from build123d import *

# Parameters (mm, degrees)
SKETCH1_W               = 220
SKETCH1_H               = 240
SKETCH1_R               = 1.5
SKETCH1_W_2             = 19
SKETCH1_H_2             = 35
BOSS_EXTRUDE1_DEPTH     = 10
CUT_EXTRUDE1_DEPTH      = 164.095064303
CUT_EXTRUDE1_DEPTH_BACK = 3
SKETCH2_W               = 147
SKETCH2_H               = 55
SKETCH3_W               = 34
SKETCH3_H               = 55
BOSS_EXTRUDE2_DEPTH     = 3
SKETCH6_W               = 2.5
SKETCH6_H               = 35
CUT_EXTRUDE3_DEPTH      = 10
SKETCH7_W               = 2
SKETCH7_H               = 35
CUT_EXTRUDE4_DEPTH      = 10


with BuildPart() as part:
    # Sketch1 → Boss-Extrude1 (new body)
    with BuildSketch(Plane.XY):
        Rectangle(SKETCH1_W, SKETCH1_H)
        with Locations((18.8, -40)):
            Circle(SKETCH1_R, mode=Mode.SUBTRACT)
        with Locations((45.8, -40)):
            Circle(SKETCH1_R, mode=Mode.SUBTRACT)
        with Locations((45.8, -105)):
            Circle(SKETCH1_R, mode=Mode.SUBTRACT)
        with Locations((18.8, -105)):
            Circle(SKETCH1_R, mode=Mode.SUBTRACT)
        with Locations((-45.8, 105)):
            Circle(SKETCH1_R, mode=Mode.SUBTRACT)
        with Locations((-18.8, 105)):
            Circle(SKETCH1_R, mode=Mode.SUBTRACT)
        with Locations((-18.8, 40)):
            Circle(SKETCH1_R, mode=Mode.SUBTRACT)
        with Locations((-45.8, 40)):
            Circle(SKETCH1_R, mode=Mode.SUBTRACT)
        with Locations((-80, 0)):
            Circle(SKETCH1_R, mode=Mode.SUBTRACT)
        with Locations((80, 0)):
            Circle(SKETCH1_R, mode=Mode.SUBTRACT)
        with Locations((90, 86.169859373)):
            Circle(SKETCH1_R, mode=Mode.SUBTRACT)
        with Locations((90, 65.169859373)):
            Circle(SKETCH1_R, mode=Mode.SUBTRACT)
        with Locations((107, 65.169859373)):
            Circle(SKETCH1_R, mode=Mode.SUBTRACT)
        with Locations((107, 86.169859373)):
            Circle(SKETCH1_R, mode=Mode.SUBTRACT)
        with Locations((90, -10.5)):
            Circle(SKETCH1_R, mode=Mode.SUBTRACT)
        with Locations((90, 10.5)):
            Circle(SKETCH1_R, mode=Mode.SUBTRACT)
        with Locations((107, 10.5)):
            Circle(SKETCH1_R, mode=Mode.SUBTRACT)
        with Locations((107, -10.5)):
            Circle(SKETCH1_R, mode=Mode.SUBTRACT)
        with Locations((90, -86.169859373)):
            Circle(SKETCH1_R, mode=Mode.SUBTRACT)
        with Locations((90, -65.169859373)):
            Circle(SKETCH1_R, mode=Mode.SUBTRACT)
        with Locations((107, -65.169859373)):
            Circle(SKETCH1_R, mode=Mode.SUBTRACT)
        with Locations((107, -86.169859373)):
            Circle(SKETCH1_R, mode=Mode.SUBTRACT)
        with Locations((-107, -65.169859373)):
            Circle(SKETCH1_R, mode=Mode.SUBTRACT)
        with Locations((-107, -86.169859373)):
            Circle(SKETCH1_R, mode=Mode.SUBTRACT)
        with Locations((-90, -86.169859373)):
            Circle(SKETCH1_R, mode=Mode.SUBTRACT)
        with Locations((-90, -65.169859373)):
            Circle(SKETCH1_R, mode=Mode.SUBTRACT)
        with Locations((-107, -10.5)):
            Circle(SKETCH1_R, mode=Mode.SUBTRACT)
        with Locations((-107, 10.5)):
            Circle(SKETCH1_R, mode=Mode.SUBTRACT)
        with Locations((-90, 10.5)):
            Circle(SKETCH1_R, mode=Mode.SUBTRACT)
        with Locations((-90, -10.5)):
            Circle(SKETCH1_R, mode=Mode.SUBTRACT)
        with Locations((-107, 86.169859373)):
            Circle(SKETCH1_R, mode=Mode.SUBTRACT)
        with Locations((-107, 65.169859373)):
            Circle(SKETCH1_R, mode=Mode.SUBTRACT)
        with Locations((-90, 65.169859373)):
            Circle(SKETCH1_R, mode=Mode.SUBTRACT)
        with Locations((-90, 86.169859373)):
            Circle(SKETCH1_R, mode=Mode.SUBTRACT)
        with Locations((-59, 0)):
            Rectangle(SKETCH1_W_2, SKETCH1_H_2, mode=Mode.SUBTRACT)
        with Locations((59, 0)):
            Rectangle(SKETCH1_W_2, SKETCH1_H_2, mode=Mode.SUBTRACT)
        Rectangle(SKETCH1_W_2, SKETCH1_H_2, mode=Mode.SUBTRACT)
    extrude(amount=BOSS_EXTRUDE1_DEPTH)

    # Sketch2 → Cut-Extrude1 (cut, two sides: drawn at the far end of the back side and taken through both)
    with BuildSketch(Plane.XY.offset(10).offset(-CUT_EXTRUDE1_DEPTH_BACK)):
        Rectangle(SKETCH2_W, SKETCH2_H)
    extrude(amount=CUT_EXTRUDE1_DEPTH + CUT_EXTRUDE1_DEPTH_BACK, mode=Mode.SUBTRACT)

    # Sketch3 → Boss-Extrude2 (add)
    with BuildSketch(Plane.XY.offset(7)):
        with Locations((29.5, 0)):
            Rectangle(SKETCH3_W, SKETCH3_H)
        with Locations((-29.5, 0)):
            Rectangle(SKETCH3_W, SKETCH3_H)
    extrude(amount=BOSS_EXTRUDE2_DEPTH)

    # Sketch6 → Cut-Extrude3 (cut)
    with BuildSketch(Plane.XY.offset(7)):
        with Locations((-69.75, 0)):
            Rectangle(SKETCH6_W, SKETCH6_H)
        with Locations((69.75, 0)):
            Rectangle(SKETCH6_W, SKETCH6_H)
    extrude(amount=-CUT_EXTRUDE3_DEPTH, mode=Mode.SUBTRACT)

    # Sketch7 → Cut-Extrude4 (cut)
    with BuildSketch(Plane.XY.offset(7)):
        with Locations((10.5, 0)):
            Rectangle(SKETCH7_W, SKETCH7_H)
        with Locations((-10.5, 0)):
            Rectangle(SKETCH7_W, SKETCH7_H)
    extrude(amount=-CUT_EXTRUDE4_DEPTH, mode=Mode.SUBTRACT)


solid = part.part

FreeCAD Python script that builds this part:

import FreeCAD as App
import Part
import Sketcher
Q = App.Units.Quantity


def add_polygon(sketch, points):
    """Adds a closed chain of lines whose ends are joined by coincident constraints."""
    first, n = sketch.GeometryCount, len(points)
    for a, b in zip(points, points[1:] + points[:1]):
        sketch.addGeometry(Part.LineSegment(App.Vector(*a, 0), App.Vector(*b, 0)), False)
    for i in range(n):
        sketch.addConstraint(Sketcher.Constraint("Coincident", first + i, 2, first + (i + 1) % n, 1))

doc = App.newDocument("Part")
body = doc.addObject("PartDesign::Body", "Body")

# Sketch on XY plane
sketch1 = doc.addObject("Sketcher::SketchObject", "Sketch")
body.addObject(sketch1)
sketch1.AttachmentSupport = (doc.XY_Plane, [""])
sketch1.MapMode = "FlatFace"
add_polygon(sketch1, [(-110, 120), (-110, -120), (110, -120), (110, 120)])  # lines 0-3
sketch1.addGeometry(Part.Circle(App.Vector(-107, -86.169859, 0), App.Vector(0, 0, 1), 1.5), False)  # 4
sketch1.addGeometry(Part.Circle(App.Vector(-90, -86.169859, 0), App.Vector(0, 0, 1), 1.5), False)  # 5
sketch1.addGeometry(Part.Circle(App.Vector(-107, -65.169859, 0), App.Vector(0, 0, 1), 1.5), False)  # 6
sketch1.addGeometry(Part.Circle(App.Vector(-90, -65.169859, 0), App.Vector(0, 0, 1), 1.5), False)  # 7
sketch1.addGeometry(Part.Circle(App.Vector(-107, -10.5, 0), App.Vector(0, 0, 1), 1.5), False)  # 8
sketch1.addGeometry(Part.Circle(App.Vector(-90, -10.5, 0), App.Vector(0, 0, 1), 1.5), False)  # 9
sketch1.addGeometry(Part.Circle(App.Vector(18.8, -105, 0), App.Vector(0, 0, 1), 1.5), False)  # 10
sketch1.addGeometry(Part.Circle(App.Vector(45.8, -105, 0), App.Vector(0, 0, 1), 1.5), False)  # 11
sketch1.addGeometry(Part.Circle(App.Vector(90, -86.169859, 0), App.Vector(0, 0, 1), 1.5), False)  # 12
sketch1.addGeometry(Part.Circle(App.Vector(107, -86.169859, 0), App.Vector(0, 0, 1), 1.5), False)  # 13
sketch1.addGeometry(Part.Circle(App.Vector(90, -65.169859, 0), App.Vector(0, 0, 1), 1.5), False)  # 14
sketch1.addGeometry(Part.Circle(App.Vector(107, -65.169859, 0), App.Vector(0, 0, 1), 1.5), False)  # 15
sketch1.addGeometry(Part.Circle(App.Vector(18.8, -40, 0), App.Vector(0, 0, 1), 1.5), False)  # 16
sketch1.addGeometry(Part.Circle(App.Vector(45.8, -40, 0), App.Vector(0, 0, 1), 1.5), False)  # 17
sketch1.addGeometry(Part.Circle(App.Vector(90, -10.5, 0), App.Vector(0, 0, 1), 1.5), False)  # 18
sketch1.addGeometry(Part.Circle(App.Vector(107, -10.5, 0), App.Vector(0, 0, 1), 1.5), False)  # 19
sketch1.addGeometry(Part.Circle(App.Vector(-107, 10.5, 0), App.Vector(0, 0, 1), 1.5), False)  # 20
sketch1.addGeometry(Part.Circle(App.Vector(-90, 10.5, 0), App.Vector(0, 0, 1), 1.5), False)  # 21
sketch1.addGeometry(Part.Circle(App.Vector(-80, 0, 0), App.Vector(0, 0, 1), 1.5), False)  # 22
add_polygon(sketch1, [(-49.5, -17.5), (-68.5, -17.5), (-68.5, 17.5), (-49.5, 17.5)])  # lines 23-26
sketch1.addGeometry(Part.Circle(App.Vector(-45.8, 40, 0), App.Vector(0, 0, 1), 1.5), False)  # 27
sketch1.addGeometry(Part.Circle(App.Vector(-18.8, 40, 0), App.Vector(0, 0, 1), 1.5), False)  # 28
sketch1.addGeometry(Part.Circle(App.Vector(-107, 65.169859, 0), App.Vector(0, 0, 1), 1.5), False)  # 29
sketch1.addGeometry(Part.Circle(App.Vector(-90, 65.169859, 0), App.Vector(0, 0, 1), 1.5), False)  # 30
sketch1.addGeometry(Part.Circle(App.Vector(-107, 86.169859, 0), App.Vector(0, 0, 1), 1.5), False)  # 31
sketch1.addGeometry(Part.Circle(App.Vector(-90, 86.169859, 0), App.Vector(0, 0, 1), 1.5), False)  # 32
sketch1.addGeometry(Part.Circle(App.Vector(-45.8, 105, 0), App.Vector(0, 0, 1), 1.5), False)  # 33
sketch1.addGeometry(Part.Circle(App.Vector(-18.8, 105, 0), App.Vector(0, 0, 1), 1.5), False)  # 34
add_polygon(sketch1, [(9.5, -17.5), (-9.5, -17.5), (-9.5, 17.5), (9.5, 17.5)])  # lines 35-38
add_polygon(sketch1, [(68.5, -17.5), (49.5, -17.5), (49.5, 17.5), (68.5, 17.5)])  # lines 39-42
sketch1.addGeometry(Part.Circle(App.Vector(80, 0, 0), App.Vector(0, 0, 1), 1.5), False)  # 43
sketch1.addGeometry(Part.Circle(App.Vector(90, 10.5, 0), App.Vector(0, 0, 1), 1.5), False)  # 44
sketch1.addGeometry(Part.Circle(App.Vector(107, 10.5, 0), App.Vector(0, 0, 1), 1.5), False)  # 45
sketch1.addGeometry(Part.Circle(App.Vector(90, 65.169859, 0), App.Vector(0, 0, 1), 1.5), False)  # 46
sketch1.addGeometry(Part.Circle(App.Vector(107, 65.169859, 0), App.Vector(0, 0, 1), 1.5), False)  # 47
sketch1.addGeometry(Part.Circle(App.Vector(90, 86.169859, 0), App.Vector(0, 0, 1), 1.5), False)  # 48
sketch1.addGeometry(Part.Circle(App.Vector(107, 86.169859, 0), App.Vector(0, 0, 1), 1.5), False)  # 49
sketch1.addConstraint(Sketcher.Constraint("Vertical", 0))
sketch1.addConstraint(Sketcher.Constraint("Horizontal", 1))
sketch1.addConstraint(Sketcher.Constraint("Vertical", 2))
sketch1.addConstraint(Sketcher.Constraint("Horizontal", 3))
sketch1.addConstraint(Sketcher.Constraint("Horizontal", 23))
sketch1.addConstraint(Sketcher.Constraint("Vertical", 24))
sketch1.addConstraint(Sketcher.Constraint("Horizontal", 25))
sketch1.addConstraint(Sketcher.Constraint("Vertical", 26))
sketch1.addConstraint(Sketcher.Constraint("Horizontal", 35))
sketch1.addConstraint(Sketcher.Constraint("Vertical", 36))
sketch1.addConstraint(Sketcher.Constraint("Horizontal", 37))
sketch1.addConstraint(Sketcher.Constraint("Vertical", 38))
sketch1.addConstraint(Sketcher.Constraint("Horizontal", 39))
sketch1.addConstraint(Sketcher.Constraint("Vertical", 40))
sketch1.addConstraint(Sketcher.Constraint("Horizontal", 41))
sketch1.addConstraint(Sketcher.Constraint("Vertical", 42))
sketch1.addConstraint(Sketcher.Constraint("Equal", 4, 5))
sketch1.addConstraint(Sketcher.Constraint("Equal", 5, 6))
sketch1.addConstraint(Sketcher.Constraint("Equal", 6, 7))
sketch1.addConstraint(Sketcher.Constraint("Equal", 7, 8))
sketch1.addConstraint(Sketcher.Constraint("Equal", 8, 9))
sketch1.addConstraint(Sketcher.Constraint("Equal", 9, 10))
sketch1.addConstraint(Sketcher.Constraint("Equal", 10, 11))
sketch1.addConstraint(Sketcher.Constraint("Equal", 11, 12))
sketch1.addConstraint(Sketcher.Constraint("Equal", 12, 13))
sketch1.addConstraint(Sketcher.Constraint("Equal", 13, 14))
sketch1.addConstraint(Sketcher.Constraint("Equal", 14, 15))
sketch1.addConstraint(Sketcher.Constraint("Equal", 15, 16))
sketch1.addConstraint(Sketcher.Constraint("Equal", 16, 17))
sketch1.addConstraint(Sketcher.Constraint("Equal", 17, 18))
sketch1.addConstraint(Sketcher.Constraint("Equal", 18, 19))
sketch1.addConstraint(Sketcher.Constraint("Equal", 19, 20))
sketch1.addConstraint(Sketcher.Constraint("Equal", 20, 21))
sketch1.addConstraint(Sketcher.Constraint("Equal", 21, 22))
sketch1.addConstraint(Sketcher.Constraint("Equal", 22, 27))
sketch1.addConstraint(Sketcher.Constraint("Equal", 27, 28))
sketch1.addConstraint(Sketcher.Constraint("Equal", 28, 29))
sketch1.addConstraint(Sketcher.Constraint("Equal", 29, 30))
sketch1.addConstraint(Sketcher.Constraint("Equal", 30, 31))
sketch1.addConstraint(Sketcher.Constraint("Equal", 31, 32))
sketch1.addConstraint(Sketcher.Constraint("Equal", 32, 33))
sketch1.addConstraint(Sketcher.Constraint("Equal", 33, 34))
sketch1.addConstraint(Sketcher.Constraint("Equal", 34, 43))
sketch1.addConstraint(Sketcher.Constraint("Equal", 43, 44))
sketch1.addConstraint(Sketcher.Constraint("Equal", 44, 45))
sketch1.addConstraint(Sketcher.Constraint("Equal", 45, 46))
sketch1.addConstraint(Sketcher.Constraint("Equal", 46, 47))
sketch1.addConstraint(Sketcher.Constraint("Equal", 47, 48))
sketch1.addConstraint(Sketcher.Constraint("Equal", 48, 49))
sketch1.addConstraint(Sketcher.Constraint("Symmetric", 19, 3, 20, 3, -1, 1))
sketch1.addConstraint(Sketcher.Constraint("Symmetric", 18, 3, 21, 3, -1, 1))
sketch1.addConstraint(Sketcher.Constraint("Symmetric", 17, 3, 27, 3, -1, 1))
sketch1.addConstraint(Sketcher.Constraint("Symmetric", 16, 3, 28, 3, -1, 1))
sketch1.addConstraint(Sketcher.Constraint("Symmetric", 15, 3, 29, 3, -1, 1))
sketch1.addConstraint(Sketcher.Constraint("Symmetric", 14, 3, 30, 3, -1, 1))
sketch1.addConstraint(Sketcher.Constraint("Symmetric", 13, 3, 31, 3, -1, 1))
sketch1.addConstraint(Sketcher.Constraint("Symmetric", 12, 3, 32, 3, -1, 1))
sketch1.addConstraint(Sketcher.Constraint("Symmetric", 11, 3, 33, 3, -1, 1))
sketch1.addConstraint(Sketcher.Constraint("Symmetric", 10, 3, 34, 3, -1, 1))
sketch1.addConstraint(Sketcher.Constraint("Symmetric", 22, 3, 43, 3, -1, 1))
sketch1.addConstraint(Sketcher.Constraint("Symmetric", 9, 3, 44, 3, -1, 1))
sketch1.addConstraint(Sketcher.Constraint("Symmetric", 8, 3, 45, 3, -1, 1))
sketch1.addConstraint(Sketcher.Constraint("Symmetric", 7, 3, 46, 3, -1, 1))
sketch1.addConstraint(Sketcher.Constraint("Symmetric", 6, 3, 47, 3, -1, 1))
sketch1.addConstraint(Sketcher.Constraint("Symmetric", 5, 3, 48, 3, -1, 1))
sketch1.addConstraint(Sketcher.Constraint("Symmetric", 4, 3, 49, 3, -1, 1))
sketch1.addConstraint(Sketcher.Constraint("Symmetric", 0, 2, 2, 2, -1, 1))
sketch1.addConstraint(Sketcher.Constraint("Symmetric", 35, 2, 37, 2, -1, 1))
sketch1.addConstraint(Sketcher.Constraint("Symmetric", 25, 2, 39, 2, -1, 1))
sketch1.addConstraint(Sketcher.Constraint("Symmetric", 23, 2, 41, 2, -1, 1))
sketch1.addConstraint(Sketcher.Constraint("Symmetric", 5, 3, 12, 3, -2))
sketch1.addConstraint(Sketcher.Constraint("Symmetric", 4, 3, 13, 3, -2))
sketch1.addConstraint(Sketcher.Constraint("Symmetric", 7, 3, 14, 3, -2))
sketch1.addConstraint(Sketcher.Constraint("Symmetric", 6, 3, 15, 3, -2))
sketch1.addConstraint(Sketcher.Constraint("Symmetric", 9, 3, 18, 3, -2))
sketch1.addConstraint(Sketcher.Constraint("Symmetric", 8, 3, 19, 3, -2))
sketch1.addConstraint(Sketcher.Constraint("PointOnObject", 22, 3, -1))
sketch1.addConstraint(Sketcher.Constraint("Horizontal", 4, 3, 5, 3))
sketch1.addConstraint(Sketcher.Constraint("Horizontal", 6, 3, 7, 3))
sketch1.addConstraint(Sketcher.Constraint("Horizontal", 8, 3, 9, 3))
sketch1.addConstraint(Sketcher.Constraint("Horizontal", 10, 3, 11, 3))
sketch1.addConstraint(Sketcher.Constraint("Horizontal", 16, 3, 17, 3))
sketch1.addConstraint(Sketcher.Constraint("Horizontal", 26, 2, 35, 2))
sketch1.addConstraint(Sketcher.Constraint("Horizontal", 25, 2, 36, 2))
sketch1.addConstraint(Sketcher.Constraint("Vertical", 4, 3, 6, 3))
sketch1.addConstraint(Sketcher.Constraint("Vertical", 5, 3, 7, 3))
sketch1.addConstraint(Sketcher.Constraint("Vertical", 6, 3, 8, 3))
sketch1.addConstraint(Sketcher.Constraint("Vertical", 7, 3, 9, 3))
sketch1.addConstraint(Sketcher.Constraint("Vertical", 10, 3, 16, 3))
sketch1.addConstraint(Sketcher.Constraint("Vertical", 11, 3, 17, 3))
sketch1.addConstraint(Sketcher.Constraint("Equal", 25, 35))
sketch1.addConstraint(Sketcher.Constraint("Diameter", 4, Q("3 mm")))
sketch1.addConstraint(Sketcher.Constraint("DistanceX", 1, 1, 1, 2, Q("220 mm")))
sketch1.addConstraint(Sketcher.Constraint("DistanceX", 23, 2, 23, 1, Q("19 mm")))
sketch1.addConstraint(Sketcher.Constraint("DistanceY", 0, 2, 0, 1, Q("240 mm")))
sketch1.addConstraint(Sketcher.Constraint("DistanceY", 24, 1, 24, 2, Q("35 mm")))
sketch1.addConstraint(Sketcher.Constraint("DistanceX", 4, 3, -1, 1, Q("107 mm")))
sketch1.addConstraint(Sketcher.Constraint("DistanceX", 5, 3, -1, 1, Q("90 mm")))
sketch1.addConstraint(Sketcher.Constraint("DistanceY", 10, 3, -1, 1, Q("105 mm")))
sketch1.addConstraint(Sketcher.Constraint("DistanceY", 16, 3, -1, 1, Q("40 mm")))
sketch1.addConstraint(Sketcher.Constraint("DistanceX", 22, 3, -1, 1, Q("80 mm")))
sketch1.addConstraint(Sketcher.Constraint("DistanceY", 4, 3, 6, 3, Q("21 mm")))
sketch1.addConstraint(Sketcher.Constraint("DistanceX", 10, 3, 11, 3, Q("27 mm")))
sketch1.addConstraint(Sketcher.Constraint("DistanceY", 8, 3, 20, 3, Q("21 mm")))
sketch1.addConstraint(Sketcher.Constraint("DistanceX", 26, 2, 35, 2, Q("40 mm")))
sketch1.addConstraint(Sketcher.Constraint("DistanceX", -1, 1, 10, 3, Q("18.8 mm")))
sketch1.addConstraint(Sketcher.Constraint("DistanceY", 4, 3, -1, 1, Q("86.169859 mm")))
pad1 = doc.addObject("PartDesign::Pad", "Pad")
body.addObject(pad1)
pad1.Profile = sketch1
pad1.Length = 10

# Sketch on XY plane
sketch2 = doc.addObject("Sketcher::SketchObject", "Sketch001")
body.addObject(sketch2)
sketch2.AttachmentSupport = (doc.XY_Plane, [""])
sketch2.MapMode = "FlatFace"
sketch2.AttachmentOffset = App.Placement(App.Vector(0, 0, 10), App.Rotation())
add_polygon(sketch2, [(-73.5, 27.5), (-73.5, -27.5), (73.5, -27.5), (73.5, 27.5)])  # lines 0-3
sketch2.addConstraint(Sketcher.Constraint("Vertical", 0))
sketch2.addConstraint(Sketcher.Constraint("Horizontal", 1))
sketch2.addConstraint(Sketcher.Constraint("Vertical", 2))
sketch2.addConstraint(Sketcher.Constraint("Horizontal", 3))
sketch2.addConstraint(Sketcher.Constraint("Symmetric", 0, 2, 2, 2, -1, 1))
sketch2.addConstraint(Sketcher.Constraint("DistanceX", 1, 1, 1, 2, Q("147 mm")))
sketch2.addConstraint(Sketcher.Constraint("DistanceY", 0, 2, 0, 1, Q("55 mm")))
pocket1 = doc.addObject("PartDesign::Pocket", "Pocket")
body.addObject(pocket1)
pocket1.Profile = sketch2
pocket1.Type = "TwoLengths"
pocket1.Length = 164.095064
pocket1.Length2 = 3
pocket1.Reversed = True

# Sketch on XY plane
sketch3 = doc.addObject("Sketcher::SketchObject", "Sketch002")
body.addObject(sketch3)
sketch3.AttachmentSupport = (doc.XY_Plane, [""])
sketch3.MapMode = "FlatFace"
sketch3.AttachmentOffset = App.Placement(App.Vector(0, 0, 7), App.Rotation())
add_polygon(sketch3, [(12.5, 27.5), (12.5, -27.5), (46.5, -27.5), (46.5, 27.5)])  # lines 0-3
add_polygon(sketch3, [(-46.5, 27.5), (-46.5, -27.5), (-12.5, -27.5), (-12.5, 27.5)])  # lines 4-7
sketch3.addConstraint(Sketcher.Constraint("Vertical", 0))
sketch3.addConstraint(Sketcher.Constraint("Horizontal", 1))
sketch3.addConstraint(Sketcher.Constraint("Vertical", 2))
sketch3.addConstraint(Sketcher.Constraint("Horizontal", 3))
sketch3.addConstraint(Sketcher.Constraint("Vertical", 4))
sketch3.addConstraint(Sketcher.Constraint("Horizontal", 5))
sketch3.addConstraint(Sketcher.Constraint("Vertical", 6))
sketch3.addConstraint(Sketcher.Constraint("Horizontal", 7))
sketch3.addConstraint(Sketcher.Constraint("Symmetric", 2, 2, 4, 2, -1, 1))
sketch3.addConstraint(Sketcher.Constraint("Symmetric", 0, 2, 6, 2, -1, 1))
sketch3.addConstraint(Sketcher.Constraint("Horizontal", 1, 2, 4, 2))
sketch3.addConstraint(Sketcher.Constraint("DistanceX", 1, 1, 1, 2, Q("34 mm")))
sketch3.addConstraint(Sketcher.Constraint("DistanceY", 0, 2, 0, 1, Q("55 mm")))
sketch3.addConstraint(Sketcher.Constraint("DistanceX", 4, 2, 0, 2, Q("59 mm")))
pad2 = doc.addObject("PartDesign::Pad", "Pad001")
body.addObject(pad2)
pad2.Profile = sketch3
pad2.Length = 3

# Sketch on XY plane
sketch4 = doc.addObject("Sketcher::SketchObject", "Sketch003")
body.addObject(sketch4)
sketch4.AttachmentSupport = (doc.XY_Plane, [""])
sketch4.MapMode = "FlatFace"
sketch4.AttachmentOffset = App.Placement(App.Vector(0, 0, 7), App.Rotation())
add_polygon(sketch4, [(-71, 17.5), (-71, -17.5), (-68.5, -17.5), (-68.5, 17.5)])  # lines 0-3
add_polygon(sketch4, [(68.5, 17.5), (68.5, -17.5), (71, -17.5), (71, 17.5)])  # lines 4-7
sketch4.addConstraint(Sketcher.Constraint("Vertical", 0))
sketch4.addConstraint(Sketcher.Constraint("Horizontal", 1))
sketch4.addConstraint(Sketcher.Constraint("Vertical", 2))
sketch4.addConstraint(Sketcher.Constraint("Horizontal", 3))
sketch4.addConstraint(Sketcher.Constraint("Vertical", 4))
sketch4.addConstraint(Sketcher.Constraint("Horizontal", 5))
sketch4.addConstraint(Sketcher.Constraint("Vertical", 6))
sketch4.addConstraint(Sketcher.Constraint("Horizontal", 7))
sketch4.addConstraint(Sketcher.Constraint("Symmetric", 2, 2, 4, 2, -1, 1))
sketch4.addConstraint(Sketcher.Constraint("Symmetric", 0, 2, 6, 2, -1, 1))
sketch4.addConstraint(Sketcher.Constraint("Horizontal", 1, 2, 4, 2))
sketch4.addConstraint(Sketcher.Constraint("DistanceY", 0, 2, 0, 1, Q("35 mm")))
sketch4.addConstraint(Sketcher.Constraint("DistanceX", 1, 1, 1, 2, Q("2.5 mm")))
sketch4.addConstraint(Sketcher.Constraint("DistanceX", 0, 2, -1, 1, Q("71 mm")))
pocket2 = doc.addObject("PartDesign::Pocket", "Pocket001")
body.addObject(pocket2)
pocket2.Profile = sketch4
pocket2.Length = 10

# Sketch on XY plane
sketch5 = doc.addObject("Sketcher::SketchObject", "Sketch004")
body.addObject(sketch5)
sketch5.AttachmentSupport = (doc.XY_Plane, [""])
sketch5.MapMode = "FlatFace"
sketch5.AttachmentOffset = App.Placement(App.Vector(0, 0, 7), App.Rotation())
add_polygon(sketch5, [(9.5, 17.5), (9.5, -17.5), (11.5, -17.5), (11.5, 17.5)])  # lines 0-3
add_polygon(sketch5, [(-11.5, 17.5), (-11.5, -17.5), (-9.5, -17.5), (-9.5, 17.5)])  # lines 4-7
sketch5.addConstraint(Sketcher.Constraint("Vertical", 0))
sketch5.addConstraint(Sketcher.Constraint("Horizontal", 1))
sketch5.addConstraint(Sketcher.Constraint("Vertical", 2))
sketch5.addConstraint(Sketcher.Constraint("Horizontal", 3))
sketch5.addConstraint(Sketcher.Constraint("Vertical", 4))
sketch5.addConstraint(Sketcher.Constraint("Horizontal", 5))
sketch5.addConstraint(Sketcher.Constraint("Vertical", 6))
sketch5.addConstraint(Sketcher.Constraint("Horizontal", 7))
sketch5.addConstraint(Sketcher.Constraint("Symmetric", 2, 2, 4, 2, -1, 1))
sketch5.addConstraint(Sketcher.Constraint("Symmetric", 0, 2, 6, 2, -1, 1))
sketch5.addConstraint(Sketcher.Constraint("Horizontal", 1, 2, 4, 2))
sketch5.addConstraint(Sketcher.Constraint("DistanceX", 1, 1, 1, 2, Q("2 mm")))
sketch5.addConstraint(Sketcher.Constraint("DistanceY", 0, 2, 0, 1, Q("35 mm")))
sketch5.addConstraint(Sketcher.Constraint("DistanceX", 4, 2, 0, 2, Q("21 mm")))
pocket3 = doc.addObject("PartDesign::Pocket", "Pocket002")
body.addObject(pocket3)
pocket3.Profile = sketch5
pocket3.Length = 10

doc.recompute()
